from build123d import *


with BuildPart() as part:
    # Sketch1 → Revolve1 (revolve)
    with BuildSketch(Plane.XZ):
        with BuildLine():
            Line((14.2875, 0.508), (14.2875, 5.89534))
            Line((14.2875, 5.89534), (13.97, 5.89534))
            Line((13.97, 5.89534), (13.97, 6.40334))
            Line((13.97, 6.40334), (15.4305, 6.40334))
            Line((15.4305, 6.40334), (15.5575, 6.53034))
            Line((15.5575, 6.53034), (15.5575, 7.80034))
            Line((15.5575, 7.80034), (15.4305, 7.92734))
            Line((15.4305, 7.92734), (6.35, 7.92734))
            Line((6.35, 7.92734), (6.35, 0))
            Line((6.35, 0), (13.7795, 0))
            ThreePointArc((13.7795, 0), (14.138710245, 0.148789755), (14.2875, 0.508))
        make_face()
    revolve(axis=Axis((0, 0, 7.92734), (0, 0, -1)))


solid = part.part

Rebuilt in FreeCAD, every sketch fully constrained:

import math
import FreeCAD as App
import Part
import Sketcher
from FreeCAD import Vector
Q = App.Units.Quantity

doc = App.newDocument("Part")
params = doc.addObject("Spreadsheet::Sheet", "Params")
for row, (alias, value) in enumerate([
    ("sketch1_radius", "0.02 in"),
    ("sketch1_height", "0.02 in"),
    ("sketch1_height2", "0.05 in"),
    ("revolution_angle", "360 deg"),
], start=1):
    params.set(f"A{row}", alias)
    params.set(f"B{row}", "=" + value)
    params.setAlias(f"B{row}", alias)

body = doc.addObject("PartDesign::Body", "Body")

sketch1 = body.newObject("Sketcher::SketchObject", "Sketch")
sketch1.AttachmentSupport = (doc.getObject("XZ_Plane"), [""])
sketch1.MapMode = "FlatFace"
sketch1.addGeometry(Part.LineSegment(Vector(14.2875, 0.508, 0), Vector(14.2875, 5.89534, 0)), False)
sketch1.addGeometry(Part.LineSegment(Vector(14.2875, 5.89534, 0), Vector(13.97, 5.89534, 0)), False)
sketch1.addGeometry(Part.LineSegment(Vector(13.97, 5.89534, 0), Vector(13.97, 6.40334, 0)), False)
sketch1.addGeometry(Part.LineSegment(Vector(13.97, 6.40334, 0), Vector(15.4305, 6.40334, 0)), False)
sketch1.addGeometry(Part.LineSegment(Vector(15.4305, 6.40334, 0), Vector(15.5575, 6.53034, 0)), False)
sketch1.addGeometry(Part.LineSegment(Vector(15.5575, 6.53034, 0), Vector(15.5575, 7.80034, 0)), False)
sketch1.addGeometry(Part.LineSegment(Vector(15.5575, 7.80034, 0), Vector(15.4305, 7.92734, 0)), False)
sketch1.addGeometry(Part.LineSegment(Vector(15.4305, 7.92734, 0), Vector(6.35, 7.92734, 0)), False)
sketch1.addGeometry(Part.LineSegment(Vector(6.35, 7.92734, 0), Vector(6.35, 0, 0)), False)
sketch1.addGeometry(Part.LineSegment(Vector(6.35, 0, 0), Vector(13.7795, 0, 0)), False)
sketch1.addGeometry(Part.ArcOfCircle(Part.Circle(Vector(13.7795, 0.508, 0), Vector(0, 0, 1), 0.508), math.radians(-90), math.radians(0)), False)
sketch1.addConstraint(Sketcher.Constraint("Coincident", 0, 2, 1, 1))
sketch1.addConstraint(Sketcher.Constraint("Coincident", 1, 2, 2, 1))
sketch1.addConstraint(Sketcher.Constraint("Coincident", 2, 2, 3, 1))
sketch1.addConstraint(Sketcher.Constraint("Coincident", 3, 2, 4, 1))
sketch1.addConstraint(Sketcher.Constraint("Coincident", 4, 2, 5, 1))
sketch1.addConstraint(Sketcher.Constraint("Coincident", 5, 2, 6, 1))
sketch1.addConstraint(Sketcher.Constraint("Coincident", 6, 2, 7, 1))
sketch1.addConstraint(Sketcher.Constraint("Coincident", 7, 2, 8, 1))
sketch1.addConstraint(Sketcher.Constraint("Coincident", 8, 2, 9, 1))
sketch1.addConstraint(Sketcher.Constraint("Tangent", 9, 2, 10, 1))
sketch1.addConstraint(Sketcher.Constraint("Tangent", 10, 2, 0, 1))
sketch1.addConstraint(Sketcher.Constraint("Vertical", 0))
sketch1.addConstraint(Sketcher.Constraint("Horizontal", 1))
sketch1.addConstraint(Sketcher.Constraint("Vertical", 2))
sketch1.addConstraint(Sketcher.Constraint("Horizontal", 3))
sketch1.addConstraint(Sketcher.Constraint("Vertical", 5))
sketch1.addConstraint(Sketcher.Constraint("Horizontal", 7))
sketch1.addConstraint(Sketcher.Constraint("Vertical", 8))
sketch1.addConstraint(Sketcher.Constraint("Horizontal", 9))
sketch1.addConstraint(Sketcher.Constraint("PointOnObject", 8, 2, -1))
sketch1.addConstraint(Sketcher.Constraint("Perpendicular", 4, 6))
sketch1.addConstraint(Sketcher.Constraint("Vertical", 3, 2, 6, 2))
sketch1.addConstraint(Sketcher.Constraint("Equal", 4, 6))
sketch1.addConstraint(Sketcher.Constraint("Radius", 10, Q("0.02 in")))
sketch1.addConstraint(Sketcher.Constraint("DistanceY", 2, 1, 2, 2, Q("0.02 in")))
sketch1.addConstraint(Sketcher.Constraint("DistanceY", 5, 1, 5, 2, Q("0.05 in")))
sketch1.addConstraint(Sketcher.Constraint("DistanceX", 7, 2, 2, 2, Q("0.3 in")))
sketch1.addConstraint(Sketcher.Constraint("DistanceX", -1, 1, 1, 2, Q("0.55 in")))
sketch1.addConstraint(Sketcher.Constraint("DistanceX", 0, 2, 4, 2, Q("0.05 in")))
sketch1.addConstraint(Sketcher.Constraint("DistanceY", 3, 2, 6, 2, Q("0.06 in")))
sketch1.addConstraint(Sketcher.Constraint("DistanceX", 1, 2, 1, 1, Q("0.0125 in")))
sketch1.addConstraint(Sketcher.Constraint("DistanceY", 0, 1, 0, 2, Q("0.2121 in")))
sketch1.setExpression("Constraints[23]", "Params.sketch1_radius")
sketch1.setExpression("Constraints[24]", "Params.sketch1_height")
sketch1.setExpression("Constraints[25]", "Params.sketch1_height2")
revolution = body.newObject("PartDesign::Revolution", "Revolution")
revolution.Profile = sketch1
revolution.ReferenceAxis = (sketch1, ["V_Axis"])
revolution.setExpression("Angle", "Params.revolution_angle")

doc.recompute()
